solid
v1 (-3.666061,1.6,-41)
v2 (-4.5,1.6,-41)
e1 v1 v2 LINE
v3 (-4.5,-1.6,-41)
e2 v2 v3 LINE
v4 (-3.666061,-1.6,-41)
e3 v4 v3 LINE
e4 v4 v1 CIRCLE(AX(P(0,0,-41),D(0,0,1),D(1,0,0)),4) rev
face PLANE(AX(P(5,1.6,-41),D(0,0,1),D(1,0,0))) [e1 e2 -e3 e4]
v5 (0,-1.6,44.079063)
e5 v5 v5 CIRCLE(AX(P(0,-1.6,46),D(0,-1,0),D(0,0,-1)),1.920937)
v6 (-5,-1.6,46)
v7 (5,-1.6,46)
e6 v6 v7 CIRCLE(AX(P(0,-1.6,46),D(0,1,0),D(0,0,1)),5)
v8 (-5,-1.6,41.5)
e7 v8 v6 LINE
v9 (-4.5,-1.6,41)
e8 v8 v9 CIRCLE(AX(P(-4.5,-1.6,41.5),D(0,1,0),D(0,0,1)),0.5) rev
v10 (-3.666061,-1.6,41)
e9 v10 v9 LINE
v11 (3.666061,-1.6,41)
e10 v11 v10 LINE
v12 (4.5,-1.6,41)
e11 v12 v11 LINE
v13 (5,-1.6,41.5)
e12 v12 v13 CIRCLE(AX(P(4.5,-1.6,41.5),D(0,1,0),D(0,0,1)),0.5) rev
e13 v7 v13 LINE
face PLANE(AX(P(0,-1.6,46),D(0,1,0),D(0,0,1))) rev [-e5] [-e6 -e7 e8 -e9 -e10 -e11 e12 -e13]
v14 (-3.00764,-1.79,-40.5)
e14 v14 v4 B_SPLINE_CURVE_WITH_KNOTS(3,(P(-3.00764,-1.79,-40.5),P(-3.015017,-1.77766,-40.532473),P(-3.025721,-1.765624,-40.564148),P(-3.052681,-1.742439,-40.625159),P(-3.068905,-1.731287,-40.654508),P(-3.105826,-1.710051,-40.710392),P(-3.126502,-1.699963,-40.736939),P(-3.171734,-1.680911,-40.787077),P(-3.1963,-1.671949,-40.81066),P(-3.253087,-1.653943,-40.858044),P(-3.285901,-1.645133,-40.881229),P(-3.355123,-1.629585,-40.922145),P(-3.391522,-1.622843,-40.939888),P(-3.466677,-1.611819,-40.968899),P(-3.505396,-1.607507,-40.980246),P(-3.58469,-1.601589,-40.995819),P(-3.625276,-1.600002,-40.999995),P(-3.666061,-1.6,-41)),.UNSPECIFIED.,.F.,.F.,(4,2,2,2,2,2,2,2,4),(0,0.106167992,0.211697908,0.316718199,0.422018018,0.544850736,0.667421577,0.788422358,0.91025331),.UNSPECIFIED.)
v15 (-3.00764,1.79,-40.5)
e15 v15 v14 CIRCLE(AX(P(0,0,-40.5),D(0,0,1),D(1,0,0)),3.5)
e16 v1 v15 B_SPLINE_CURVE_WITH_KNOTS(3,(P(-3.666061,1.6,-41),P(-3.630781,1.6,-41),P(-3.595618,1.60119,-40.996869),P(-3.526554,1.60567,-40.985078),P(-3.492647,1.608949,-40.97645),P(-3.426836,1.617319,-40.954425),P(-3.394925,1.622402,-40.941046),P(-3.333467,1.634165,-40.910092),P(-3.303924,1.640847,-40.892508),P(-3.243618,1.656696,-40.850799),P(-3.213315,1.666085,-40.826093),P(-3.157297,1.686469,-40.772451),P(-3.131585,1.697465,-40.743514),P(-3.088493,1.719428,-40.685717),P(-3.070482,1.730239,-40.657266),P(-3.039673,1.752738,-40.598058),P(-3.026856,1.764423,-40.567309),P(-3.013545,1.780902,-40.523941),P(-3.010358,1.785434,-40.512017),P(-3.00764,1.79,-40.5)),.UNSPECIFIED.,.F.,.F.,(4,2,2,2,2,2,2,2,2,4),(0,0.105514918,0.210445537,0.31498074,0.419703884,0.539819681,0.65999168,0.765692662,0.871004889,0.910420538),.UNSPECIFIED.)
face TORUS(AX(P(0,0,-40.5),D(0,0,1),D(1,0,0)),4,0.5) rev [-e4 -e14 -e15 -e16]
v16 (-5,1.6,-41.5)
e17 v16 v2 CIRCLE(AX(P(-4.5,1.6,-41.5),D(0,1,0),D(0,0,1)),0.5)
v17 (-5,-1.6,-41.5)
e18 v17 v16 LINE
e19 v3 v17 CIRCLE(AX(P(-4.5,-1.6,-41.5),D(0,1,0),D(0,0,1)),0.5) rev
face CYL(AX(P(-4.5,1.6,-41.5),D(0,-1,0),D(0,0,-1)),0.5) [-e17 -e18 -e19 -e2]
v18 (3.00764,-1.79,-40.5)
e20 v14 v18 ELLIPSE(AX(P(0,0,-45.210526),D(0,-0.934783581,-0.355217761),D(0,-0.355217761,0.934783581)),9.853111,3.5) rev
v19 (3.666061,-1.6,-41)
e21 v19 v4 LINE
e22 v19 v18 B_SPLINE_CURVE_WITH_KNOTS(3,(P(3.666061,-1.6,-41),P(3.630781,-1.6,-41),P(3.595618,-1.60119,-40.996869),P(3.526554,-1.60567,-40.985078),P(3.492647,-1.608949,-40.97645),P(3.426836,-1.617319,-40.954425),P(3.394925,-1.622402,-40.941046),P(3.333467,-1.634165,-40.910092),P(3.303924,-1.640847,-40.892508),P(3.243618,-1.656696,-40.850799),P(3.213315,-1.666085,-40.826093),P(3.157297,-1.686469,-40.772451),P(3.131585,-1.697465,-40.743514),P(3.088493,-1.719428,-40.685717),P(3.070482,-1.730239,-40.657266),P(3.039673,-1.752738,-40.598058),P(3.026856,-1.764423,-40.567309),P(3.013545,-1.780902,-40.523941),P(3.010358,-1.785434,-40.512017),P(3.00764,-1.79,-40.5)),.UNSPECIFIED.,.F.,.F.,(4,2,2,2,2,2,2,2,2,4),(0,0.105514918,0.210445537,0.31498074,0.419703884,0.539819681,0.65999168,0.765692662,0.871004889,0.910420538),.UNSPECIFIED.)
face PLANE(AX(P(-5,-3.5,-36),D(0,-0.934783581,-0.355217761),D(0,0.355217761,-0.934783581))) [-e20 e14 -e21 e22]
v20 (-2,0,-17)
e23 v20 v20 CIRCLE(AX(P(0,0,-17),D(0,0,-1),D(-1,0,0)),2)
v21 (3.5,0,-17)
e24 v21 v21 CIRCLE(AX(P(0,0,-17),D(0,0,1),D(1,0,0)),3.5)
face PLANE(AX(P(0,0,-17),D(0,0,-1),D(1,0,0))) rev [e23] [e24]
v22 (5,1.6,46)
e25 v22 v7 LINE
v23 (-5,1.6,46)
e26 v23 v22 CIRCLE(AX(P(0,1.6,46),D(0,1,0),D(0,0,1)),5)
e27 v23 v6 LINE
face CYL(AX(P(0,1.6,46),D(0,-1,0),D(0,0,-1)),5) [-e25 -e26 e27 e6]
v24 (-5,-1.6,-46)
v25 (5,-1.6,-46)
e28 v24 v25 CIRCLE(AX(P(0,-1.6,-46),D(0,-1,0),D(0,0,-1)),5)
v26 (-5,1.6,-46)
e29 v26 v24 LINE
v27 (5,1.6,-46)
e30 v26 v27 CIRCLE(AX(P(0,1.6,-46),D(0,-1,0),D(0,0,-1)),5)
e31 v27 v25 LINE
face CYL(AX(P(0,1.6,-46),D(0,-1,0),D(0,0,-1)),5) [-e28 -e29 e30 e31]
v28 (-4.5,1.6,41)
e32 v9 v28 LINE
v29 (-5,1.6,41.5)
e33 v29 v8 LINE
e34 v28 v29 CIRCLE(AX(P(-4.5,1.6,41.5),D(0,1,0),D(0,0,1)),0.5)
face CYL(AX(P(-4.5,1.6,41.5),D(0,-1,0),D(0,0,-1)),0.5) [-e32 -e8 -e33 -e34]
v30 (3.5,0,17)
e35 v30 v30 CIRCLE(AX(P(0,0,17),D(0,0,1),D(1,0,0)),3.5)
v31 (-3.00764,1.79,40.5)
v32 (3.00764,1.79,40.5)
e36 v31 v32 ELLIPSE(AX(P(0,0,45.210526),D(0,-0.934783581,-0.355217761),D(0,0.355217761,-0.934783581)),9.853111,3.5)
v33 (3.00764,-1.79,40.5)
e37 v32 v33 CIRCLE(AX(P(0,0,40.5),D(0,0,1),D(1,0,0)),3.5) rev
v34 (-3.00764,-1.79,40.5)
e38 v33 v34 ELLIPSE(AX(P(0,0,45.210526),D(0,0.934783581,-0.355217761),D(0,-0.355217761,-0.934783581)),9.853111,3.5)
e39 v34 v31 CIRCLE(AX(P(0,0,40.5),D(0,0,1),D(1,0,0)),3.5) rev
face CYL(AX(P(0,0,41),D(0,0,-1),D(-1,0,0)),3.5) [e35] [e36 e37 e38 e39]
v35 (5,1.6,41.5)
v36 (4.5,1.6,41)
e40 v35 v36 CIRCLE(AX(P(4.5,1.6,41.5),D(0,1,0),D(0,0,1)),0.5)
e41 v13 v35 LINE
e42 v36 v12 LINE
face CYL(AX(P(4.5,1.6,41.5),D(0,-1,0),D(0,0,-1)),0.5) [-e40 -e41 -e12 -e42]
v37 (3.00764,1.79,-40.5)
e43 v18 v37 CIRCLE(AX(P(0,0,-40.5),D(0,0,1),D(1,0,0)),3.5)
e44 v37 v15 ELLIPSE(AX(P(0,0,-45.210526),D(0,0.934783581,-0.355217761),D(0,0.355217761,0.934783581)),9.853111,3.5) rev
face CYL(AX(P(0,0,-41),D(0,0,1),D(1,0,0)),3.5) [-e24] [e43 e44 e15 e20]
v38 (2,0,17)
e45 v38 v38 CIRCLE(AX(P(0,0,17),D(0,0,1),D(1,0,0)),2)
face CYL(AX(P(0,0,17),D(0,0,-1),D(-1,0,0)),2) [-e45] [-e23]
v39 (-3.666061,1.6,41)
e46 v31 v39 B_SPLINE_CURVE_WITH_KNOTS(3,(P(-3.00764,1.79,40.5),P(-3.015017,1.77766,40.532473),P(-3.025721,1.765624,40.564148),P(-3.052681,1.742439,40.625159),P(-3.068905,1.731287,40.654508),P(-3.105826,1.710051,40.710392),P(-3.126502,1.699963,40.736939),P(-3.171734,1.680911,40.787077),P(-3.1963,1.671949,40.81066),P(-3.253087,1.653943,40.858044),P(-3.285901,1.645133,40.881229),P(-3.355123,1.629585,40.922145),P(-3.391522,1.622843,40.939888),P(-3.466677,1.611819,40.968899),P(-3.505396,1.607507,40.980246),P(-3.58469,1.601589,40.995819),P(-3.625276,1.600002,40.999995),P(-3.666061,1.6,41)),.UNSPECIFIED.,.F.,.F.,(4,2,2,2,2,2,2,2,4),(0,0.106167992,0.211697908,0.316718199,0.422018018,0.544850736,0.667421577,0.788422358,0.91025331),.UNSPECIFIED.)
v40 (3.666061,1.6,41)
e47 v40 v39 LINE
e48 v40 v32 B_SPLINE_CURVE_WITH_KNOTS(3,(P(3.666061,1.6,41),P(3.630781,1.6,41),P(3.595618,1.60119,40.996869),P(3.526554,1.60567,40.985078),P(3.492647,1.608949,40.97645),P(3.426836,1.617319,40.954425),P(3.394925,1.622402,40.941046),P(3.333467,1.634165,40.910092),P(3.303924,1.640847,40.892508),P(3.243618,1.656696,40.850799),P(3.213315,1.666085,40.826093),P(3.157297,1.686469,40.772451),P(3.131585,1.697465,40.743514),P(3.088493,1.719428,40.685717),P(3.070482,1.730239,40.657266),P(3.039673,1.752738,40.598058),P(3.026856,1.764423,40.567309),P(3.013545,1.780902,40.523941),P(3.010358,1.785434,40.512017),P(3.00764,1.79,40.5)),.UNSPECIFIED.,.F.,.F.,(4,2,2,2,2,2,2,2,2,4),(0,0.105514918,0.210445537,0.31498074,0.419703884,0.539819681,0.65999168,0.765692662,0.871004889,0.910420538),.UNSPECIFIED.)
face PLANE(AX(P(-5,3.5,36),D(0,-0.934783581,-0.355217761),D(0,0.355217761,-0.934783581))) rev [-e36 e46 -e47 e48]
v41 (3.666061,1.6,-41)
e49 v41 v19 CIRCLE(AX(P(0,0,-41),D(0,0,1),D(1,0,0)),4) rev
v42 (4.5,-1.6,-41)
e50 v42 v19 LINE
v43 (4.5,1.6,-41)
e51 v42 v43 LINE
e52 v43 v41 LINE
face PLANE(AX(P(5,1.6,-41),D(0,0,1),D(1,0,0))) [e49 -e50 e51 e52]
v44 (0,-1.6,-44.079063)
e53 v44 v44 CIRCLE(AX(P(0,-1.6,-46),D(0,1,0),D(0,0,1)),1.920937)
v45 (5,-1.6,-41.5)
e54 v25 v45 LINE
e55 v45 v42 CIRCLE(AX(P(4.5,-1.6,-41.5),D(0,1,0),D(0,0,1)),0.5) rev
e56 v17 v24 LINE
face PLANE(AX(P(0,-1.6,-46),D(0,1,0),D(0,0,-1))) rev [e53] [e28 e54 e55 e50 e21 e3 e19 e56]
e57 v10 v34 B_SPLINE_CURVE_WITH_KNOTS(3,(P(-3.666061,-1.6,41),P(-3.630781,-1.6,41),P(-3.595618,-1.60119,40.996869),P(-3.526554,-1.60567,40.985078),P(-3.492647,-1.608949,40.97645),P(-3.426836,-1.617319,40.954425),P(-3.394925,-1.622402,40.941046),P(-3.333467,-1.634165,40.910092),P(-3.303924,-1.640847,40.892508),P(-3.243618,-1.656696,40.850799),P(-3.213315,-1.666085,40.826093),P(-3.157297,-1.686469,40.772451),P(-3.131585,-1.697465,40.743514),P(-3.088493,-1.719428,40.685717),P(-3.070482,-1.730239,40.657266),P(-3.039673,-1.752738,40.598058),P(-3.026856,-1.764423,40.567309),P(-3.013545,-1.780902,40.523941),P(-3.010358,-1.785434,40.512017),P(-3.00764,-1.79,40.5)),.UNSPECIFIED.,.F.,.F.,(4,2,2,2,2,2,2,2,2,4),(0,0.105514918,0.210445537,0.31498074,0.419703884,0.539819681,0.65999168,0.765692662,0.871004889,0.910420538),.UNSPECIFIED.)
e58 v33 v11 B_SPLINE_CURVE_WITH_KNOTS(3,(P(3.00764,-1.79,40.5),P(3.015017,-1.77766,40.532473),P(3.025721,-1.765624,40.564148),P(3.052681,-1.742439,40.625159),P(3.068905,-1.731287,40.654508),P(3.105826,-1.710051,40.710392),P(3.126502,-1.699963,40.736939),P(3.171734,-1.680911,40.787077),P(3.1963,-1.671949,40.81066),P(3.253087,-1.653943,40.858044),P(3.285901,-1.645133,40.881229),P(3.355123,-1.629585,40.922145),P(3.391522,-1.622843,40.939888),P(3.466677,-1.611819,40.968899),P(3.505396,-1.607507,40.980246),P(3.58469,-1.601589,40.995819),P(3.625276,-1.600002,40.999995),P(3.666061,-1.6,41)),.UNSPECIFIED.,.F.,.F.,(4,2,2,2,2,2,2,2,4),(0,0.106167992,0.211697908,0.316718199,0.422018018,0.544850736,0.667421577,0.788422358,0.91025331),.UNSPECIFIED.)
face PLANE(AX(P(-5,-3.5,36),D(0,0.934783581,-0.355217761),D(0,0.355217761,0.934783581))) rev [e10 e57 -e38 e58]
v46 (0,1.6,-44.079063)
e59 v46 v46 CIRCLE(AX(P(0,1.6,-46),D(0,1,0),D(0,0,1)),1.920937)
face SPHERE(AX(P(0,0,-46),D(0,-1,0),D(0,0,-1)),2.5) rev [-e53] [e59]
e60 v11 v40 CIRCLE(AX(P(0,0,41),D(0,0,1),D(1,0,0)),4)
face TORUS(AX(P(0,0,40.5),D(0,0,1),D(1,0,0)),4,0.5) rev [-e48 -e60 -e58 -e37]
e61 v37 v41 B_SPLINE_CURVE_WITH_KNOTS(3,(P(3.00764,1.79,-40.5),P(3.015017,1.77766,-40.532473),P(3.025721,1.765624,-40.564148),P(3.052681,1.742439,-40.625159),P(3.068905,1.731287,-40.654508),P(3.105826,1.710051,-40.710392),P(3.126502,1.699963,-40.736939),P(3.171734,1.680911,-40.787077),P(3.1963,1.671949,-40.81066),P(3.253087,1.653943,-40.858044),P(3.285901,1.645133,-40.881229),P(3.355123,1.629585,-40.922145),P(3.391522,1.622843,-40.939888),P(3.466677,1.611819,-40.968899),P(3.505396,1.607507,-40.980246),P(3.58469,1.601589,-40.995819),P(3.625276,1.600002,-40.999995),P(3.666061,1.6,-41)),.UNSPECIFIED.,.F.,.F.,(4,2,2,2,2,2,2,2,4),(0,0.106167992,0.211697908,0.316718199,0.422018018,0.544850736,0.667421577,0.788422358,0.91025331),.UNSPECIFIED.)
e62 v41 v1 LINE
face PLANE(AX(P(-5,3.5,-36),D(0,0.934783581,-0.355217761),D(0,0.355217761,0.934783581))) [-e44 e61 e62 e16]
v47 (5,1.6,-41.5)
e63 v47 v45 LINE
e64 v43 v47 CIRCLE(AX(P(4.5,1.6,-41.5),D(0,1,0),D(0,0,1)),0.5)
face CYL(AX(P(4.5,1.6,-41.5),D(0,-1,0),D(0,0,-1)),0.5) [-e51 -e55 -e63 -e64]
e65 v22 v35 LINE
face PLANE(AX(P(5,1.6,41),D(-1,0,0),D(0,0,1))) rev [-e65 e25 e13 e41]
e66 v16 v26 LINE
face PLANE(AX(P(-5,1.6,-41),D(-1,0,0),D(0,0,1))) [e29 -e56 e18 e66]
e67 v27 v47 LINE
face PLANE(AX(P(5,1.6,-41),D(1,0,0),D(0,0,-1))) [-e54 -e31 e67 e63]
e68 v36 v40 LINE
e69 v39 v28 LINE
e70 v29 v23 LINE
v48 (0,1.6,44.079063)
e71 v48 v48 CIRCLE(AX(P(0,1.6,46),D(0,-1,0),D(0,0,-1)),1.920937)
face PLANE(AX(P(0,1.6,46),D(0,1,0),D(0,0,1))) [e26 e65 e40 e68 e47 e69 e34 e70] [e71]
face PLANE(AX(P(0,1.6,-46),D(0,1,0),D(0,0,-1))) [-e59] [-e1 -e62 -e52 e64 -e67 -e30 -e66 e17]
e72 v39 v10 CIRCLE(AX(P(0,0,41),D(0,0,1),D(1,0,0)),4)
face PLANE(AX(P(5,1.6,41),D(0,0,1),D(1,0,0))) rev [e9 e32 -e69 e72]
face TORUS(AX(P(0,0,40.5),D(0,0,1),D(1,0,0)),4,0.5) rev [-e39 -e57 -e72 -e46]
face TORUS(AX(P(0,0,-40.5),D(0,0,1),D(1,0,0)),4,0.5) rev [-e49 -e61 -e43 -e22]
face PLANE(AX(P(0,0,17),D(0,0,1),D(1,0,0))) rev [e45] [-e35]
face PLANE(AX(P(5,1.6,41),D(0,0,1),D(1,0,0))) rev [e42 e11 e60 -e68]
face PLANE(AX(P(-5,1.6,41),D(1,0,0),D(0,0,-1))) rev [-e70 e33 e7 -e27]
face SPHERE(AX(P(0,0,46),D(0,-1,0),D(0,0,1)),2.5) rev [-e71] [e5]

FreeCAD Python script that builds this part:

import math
import FreeCAD as App
import Part
import Sketcher
from FreeCAD import Vector


def edges_at(feature, points):
    """Names of the edges that pass closest to the given points."""
    edges = feature.Shape.Edges
    near = lambda p: min(range(len(edges)), key=lambda i: edges[i].distToShape(Part.Vertex(*p))[0])
    return sorted({f"Edge{near(p) + 1}" for p in points})

doc = App.newDocument("Part")
body = doc.addObject("PartDesign::Body", "Body")

sketch1 = body.newObject("Sketcher::SketchObject", "Sketch")
sketch1.AttachmentSupport = (doc.getObject("XY_Plane"), [""])
sketch1.MapMode = "FlatFace"
sketch1.addGeometry(Part.Circle(Vector(0, 0, 0), Vector(0, 0, 1), 2), False)
sketch1.addConstraint(Sketcher.Constraint("Coincident", 0, 3, -1, 1))
sketch1.addConstraint(Sketcher.Constraint("Diameter", 0, 4.0))
pad1 = body.newObject("PartDesign::Pad", "Pad")
pad1.Profile = sketch1
pad1.Length = 17

sketch2 = body.newObject("Sketcher::SketchObject", "Sketch001")
sketch2.AttachmentSupport = (doc.getObject("XY_Plane"), [""])
sketch2.MapMode = "FlatFace"
sketch2.AttachmentOffset = App.Placement(Vector(0, 0, 17), App.Rotation())
sketch2.addGeometry(Part.Circle(Vector(0, 0, 0), Vector(0, 0, 1), 3.5), False)
sketch2.addConstraint(Sketcher.Constraint("Coincident", 0, 3, -1, 1))
sketch2.addConstraint(Sketcher.Constraint("Diameter", 0, 7.0))
pad2 = body.newObject("PartDesign::Pad", "Pad001")
pad2.Profile = sketch2
pad2.Length = 24

sketch3 = body.newObject("Sketcher::SketchObject", "Sketch002")
sketch3.AttachmentSupport = (doc.getObject("XZ_Plane"), [""])
sketch3.MapMode = "FlatFace"
sketch3.addGeometry(Part.LineSegment(Vector(5, 41, 0), Vector(-5, 41, 0)), False)
sketch3.addGeometry(Part.LineSegment(Vector(-5, 41, 0), Vector(-5, 46, 0)), False)
sketch3.addGeometry(Part.ArcOfCircle(Part.Circle(Vector(0, 46, 0), Vector(0, 0, 1), 5), math.radians(0), math.radians(180)), False)
sketch3.addGeometry(Part.LineSegment(Vector(5, 46, 0), Vector(5, 41, 0)), False)
sketch3.addConstraint(Sketcher.Constraint("Coincident", 0, 2, 1, 1))
sketch3.addConstraint(Sketcher.Constraint("Tangent", 1, 2, 2, 2))
sketch3.addConstraint(Sketcher.Constraint("Tangent", 2, 1, 3, 1))
sketch3.addConstraint(Sketcher.Constraint("Coincident", 3, 2, 0, 1))
sketch3.addConstraint(Sketcher.Constraint("Horizontal", 0))
sketch3.addConstraint(Sketcher.Constraint("Vertical", 1))
sketch3.addConstraint(Sketcher.Constraint("Vertical", 3))
sketch3.addConstraint(Sketcher.Constraint("PointOnObject", 2, 3, -2))
sketch3.addConstraint(Sketcher.Constraint("Radius", 2, 5.0))
sketch3.addConstraint(Sketcher.Constraint("DistanceY", 1, 1, 1, 2, 5.0))
sketch3.addConstraint(Sketcher.Constraint("DistanceY", -1, 1, 2, 3, 46.0))
pad3 = body.newObject("PartDesign::Pad", "Pad002")
pad3.Profile = sketch3
pad3.Length = 3.2
pad3.Midplane = True

sketch4 = body.newObject("Sketcher::SketchObject", "Sketch003")
sketch4.AttachmentSupport = (doc.getObject("YZ_Plane"), [""])
sketch4.MapMode = "FlatFace"
sketch4.addGeometry(Part.LineSegment(Vector(-3.5, 36, 0), Vector(-1.6, 41, 0)), False)
sketch4.addGeometry(Part.LineSegment(Vector(-1.6, 41, 0), Vector(-3.5, 41, 0)), False)
sketch4.addGeometry(Part.LineSegment(Vector(-3.5, 41, 0), Vector(-3.5, 36, 0)), False)
sketch4.addGeometry(Part.LineSegment(Vector(1.6, 41, 0), Vector(3.5, 36, 0)), False)
sketch4.addGeometry(Part.LineSegment(Vector(3.5, 36, 0), Vector(3.5, 41, 0)), False)
sketch4.addGeometry(Part.LineSegment(Vector(3.5, 41, 0), Vector(1.6, 41, 0)), False)
sketch4.addConstraint(Sketcher.Constraint("Coincident", 0, 2, 1, 1))
sketch4.addConstraint(Sketcher.Constraint("Coincident", 1, 2, 2, 1))
sketch4.addConstraint(Sketcher.Constraint("Coincident", 2, 2, 0, 1))
sketch4.addConstraint(Sketcher.Constraint("Coincident", 3, 2, 4, 1))
sketch4.addConstraint(Sketcher.Constraint("Coincident", 4, 2, 5, 1))
sketch4.addConstraint(Sketcher.Constraint("Coincident", 5, 2, 3, 1))
sketch4.addConstraint(Sketcher.Constraint("Horizontal", 1))
sketch4.addConstraint(Sketcher.Constraint("Vertical", 2))
sketch4.addConstraint(Sketcher.Constraint("Vertical", 4))
sketch4.addConstraint(Sketcher.Constraint("Horizontal", 5))
sketch4.addConstraint(Sketcher.Constraint("Symmetric", 2, 2, 3, 2, -2))
sketch4.addConstraint(Sketcher.Constraint("Symmetric", 0, 2, 5, 2, -2))
sketch4.addConstraint(Sketcher.Constraint("DistanceY", 2, 2, 2, 1, 5.0))
sketch4.addConstraint(Sketcher.Constraint("DistanceX", 1, 2, 1, 1, 1.9))
sketch4.addConstraint(Sketcher.Constraint("DistanceY", -1, 1, 0, 2, 41.0))
sketch4.addConstraint(Sketcher.Constraint("DistanceX", 2, 2, 3, 2, 7.0))
pocket1 = body.newObject("PartDesign::Pocket", "Pocket")
pocket1.Profile = sketch4
pocket1.Length = 12
pocket1.Midplane = True
doc.recompute()

fillet = body.newObject("PartDesign::Fillet", "Fillet")
fillet.Base = (pocket1, edges_at(pocket1, [
    (-5, 0, 41),
    (3.402, -0.823, 41),
    (-3.5, 0, 41),
    (5, 0, 41),
]))
fillet.Radius = 0.5

sketch5 = body.newObject("Sketcher::SketchObject", "Sketch004")
sketch5.AttachmentSupport = (doc.getObject("YZ_Plane"), [""])
sketch5.MapMode = "FlatFace"
sketch5.addGeometry(Part.LineSegment(Vector(-1.6, 47.9, 0), Vector(-1.6, 46, 0)), False)
sketch5.addGeometry(Part.LineSegment(Vector(-1.6, 46, 0), Vector(1.6, 46, 0)), False)
sketch5.addGeometry(Part.LineSegment(Vector(1.6, 46, 0), Vector(1.6, 47.9, 0)), False)
sketch5.addGeometry(Part.ArcOfCircle(Part.Circle(Vector(0, 46, 0), Vector(0, 0, 1), 2.5), math.radians(50), math.radians(130)), False)
sketch5.addGeometry(Part.LineSegment(Vector(-1.6, 46, 0), Vector(1.6, 46, 0)), True)
sketch5.addConstraint(Sketcher.Constraint("Coincident", 0, 2, 1, 1))
sketch5.addConstraint(Sketcher.Constraint("Coincident", 1, 2, 2, 1))
sketch5.addConstraint(Sketcher.Constraint("Coincident", 2, 2, 3, 1))
sketch5.addConstraint(Sketcher.Constraint("Coincident", 3, 2, 0, 1))
sketch5.addConstraint(Sketcher.Constraint("Vertical", 0))
sketch5.addConstraint(Sketcher.Constraint("Horizontal", 1))
sketch5.addConstraint(Sketcher.Constraint("Vertical", 2))
sketch5.addConstraint(Sketcher.Constraint("Horizontal", 4))
sketch5.addConstraint(Sketcher.Constraint("Coincident", 4, 1, 0, 2))
sketch5.addConstraint(Sketcher.Constraint("Symmetric", 2, 2, 3, 2, -2))
sketch5.addConstraint(Sketcher.Constraint("Horizontal", 3, 3, 0, 2))
sketch5.addConstraint(Sketcher.Constraint("Vertical", 2, 2, 4, 2))
sketch5.addConstraint(Sketcher.Constraint("Radius", 3, 2.5))
sketch5.addConstraint(Sketcher.Constraint("DistanceX", 1, 1, 1, 2, 3.2))
sketch5.addConstraint(Sketcher.Constraint("DistanceY", -1, 1, 3, 3, 46.0))
groove = body.newObject("PartDesign::Groove", "Groove")
groove.Profile = sketch5
groove.ReferenceAxis = (sketch5, ["Axis0"])
groove.Angle = 360
doc.recompute()

mirrored = body.newObject("PartDesign::Mirrored", "Mirrored")
mirrored.Originals = [pad1, pad2, pad3, pocket1, groove]
mirrored.MirrorPlane = (doc.getObject("XY_Plane"), [""])
body.Tip = mirrored
doc.recompute()

fillet2 = body.newObject("PartDesign::Fillet", "Fillet001")
fillet2.Base = (mirrored, edges_at(mirrored, [
    (-5, 0, -41),
    (3.402, -0.823, -41),
    (-3.5, 0, -41),
    (5, 0, -41),
]))
fillet2.Radius = 0.5

doc.recompute()
